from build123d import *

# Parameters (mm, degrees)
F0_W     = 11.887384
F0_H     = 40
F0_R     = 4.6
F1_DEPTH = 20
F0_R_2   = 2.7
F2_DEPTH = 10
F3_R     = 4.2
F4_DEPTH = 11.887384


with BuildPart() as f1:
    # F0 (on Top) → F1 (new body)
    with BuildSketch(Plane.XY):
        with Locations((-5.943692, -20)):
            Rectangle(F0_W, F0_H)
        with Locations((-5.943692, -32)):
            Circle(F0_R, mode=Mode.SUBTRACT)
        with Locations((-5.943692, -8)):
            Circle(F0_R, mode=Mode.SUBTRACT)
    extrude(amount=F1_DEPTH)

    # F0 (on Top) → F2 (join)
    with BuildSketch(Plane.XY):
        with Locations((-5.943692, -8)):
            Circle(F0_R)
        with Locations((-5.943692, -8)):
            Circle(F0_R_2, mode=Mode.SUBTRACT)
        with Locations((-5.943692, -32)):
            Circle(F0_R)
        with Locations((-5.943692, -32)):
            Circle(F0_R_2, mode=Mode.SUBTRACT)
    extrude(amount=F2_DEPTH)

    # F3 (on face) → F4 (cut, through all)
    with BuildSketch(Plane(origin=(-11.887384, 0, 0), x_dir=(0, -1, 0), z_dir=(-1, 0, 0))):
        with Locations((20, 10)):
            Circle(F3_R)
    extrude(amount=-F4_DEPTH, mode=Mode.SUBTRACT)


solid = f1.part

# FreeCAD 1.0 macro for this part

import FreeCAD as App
import Part
import Sketcher
from FreeCAD import Vector
Q = App.Units.Quantity

doc = App.newDocument("Part")
body = doc.addObject("PartDesign::Body", "Body")

# Sketch on XY plane
sketch1 = body.newObject("Sketcher::SketchObject", "Sketch")
sketch1.AttachmentSupport = (doc.getObject("XY_Plane"), [""])
sketch1.MapMode = "FlatFace"
sketch1.addGeometry(Part.LineSegment(Vector(-11.9, 0, 0), Vector(-11.9, -40, 0)), False)
sketch1.addGeometry(Part.LineSegment(Vector(-11.9, -40, 0), Vector(0, -40, 0)), False)
sketch1.addGeometry(Part.LineSegment(Vector(0, -40, 0), Vector(0, 0, 0)), False)
sketch1.addGeometry(Part.LineSegment(Vector(0, 0, 0), Vector(-11.9, 0, 0)), False)
sketch1.addGeometry(Part.Circle(Vector(-5.9, -32, 0), Vector(0, 0, 1), 4.6), False)
sketch1.addGeometry(Part.Circle(Vector(-5.9, -8, 0), Vector(0, 0, 1), 4.6), False)
sketch1.addConstraint(Sketcher.Constraint("Coincident", 0, 2, 1, 1))
sketch1.addConstraint(Sketcher.Constraint("Coincident", 1, 2, 2, 1))
sketch1.addConstraint(Sketcher.Constraint("Coincident", 2, 2, 3, 1))
sketch1.addConstraint(Sketcher.Constraint("Coincident", 3, 2, 0, 1))
sketch1.addConstraint(Sketcher.Constraint("Vertical", 0))
sketch1.addConstraint(Sketcher.Constraint("Horizontal", 1))
sketch1.addConstraint(Sketcher.Constraint("Vertical", 2))
sketch1.addConstraint(Sketcher.Constraint("Horizontal", 3))
sketch1.addConstraint(Sketcher.Constraint("Coincident", 2, 2, -1, 1))
sketch1.addConstraint(Sketcher.Constraint("Equal", 4, 5))
sketch1.addConstraint(Sketcher.Constraint("Vertical", 4, 3, 5, 3))
sketch1.addConstraint(Sketcher.Constraint("Diameter", 4, Q("9.2 mm")))
sketch1.addConstraint(Sketcher.Constraint("DistanceY", 0, 2, 0, 1, Q("40 mm")))
sketch1.addConstraint(Sketcher.Constraint("DistanceY", 4, 3, -1, 1, Q("32 mm")))
sketch1.addConstraint(Sketcher.Constraint("DistanceY", 5, 3, -1, 1, Q("8 mm")))
sketch1.addConstraint(Sketcher.Constraint("DistanceX", 1, 1, 1, 2, Q("11.887384 mm")))
sketch1.addConstraint(Sketcher.Constraint("DistanceX", 4, 3, -1, 1, Q("5.943692 mm")))
pad1 = body.newObject("PartDesign::Pad", "Pad")
pad1.Profile = sketch1
pad1.Length = 20

# Sketch on XY plane
sketch2 = body.newObject("Sketcher::SketchObject", "Sketch001")
sketch2.AttachmentSupport = (doc.getObject("XY_Plane"), [""])
sketch2.MapMode = "FlatFace"
sketch2.addGeometry(Part.Circle(Vector(-5.9, -8, 0), Vector(0, 0, 1), 4.6), False)
sketch2.addGeometry(Part.Circle(Vector(-5.9, -8, 0), Vector(0, 0, 1), 2.7), False)
sketch2.addGeometry(Part.Circle(Vector(-5.9, -32, 0), Vector(0, 0, 1), 4.6), False)
sketch2.addGeometry(Part.Circle(Vector(-5.9, -32, 0), Vector(0, 0, 1), 2.7), False)
sketch2.addConstraint(Sketcher.Constraint("Coincident", 1, 3, 0, 3))
sketch2.addConstraint(Sketcher.Constraint("Coincident", 3, 3, 2, 3))
sketch2.addConstraint(Sketcher.Constraint("Equal", 0, 2))
sketch2.addConstraint(Sketcher.Constraint("Equal", 1, 3))
sketch2.addConstraint(Sketcher.Constraint("Vertical", 1, 3, 2, 3))
sketch2.addConstraint(Sketcher.Constraint("Diameter", 0, Q("9.2 mm")))
sketch2.addConstraint(Sketcher.Constraint("Diameter", 1, Q("5.4 mm")))
sketch2.addConstraint(Sketcher.Constraint("DistanceY", 0, 3, -1, 1, Q("8 mm")))
sketch2.addConstraint(Sketcher.Constraint("DistanceY", 2, 3, -1, 1, Q("32 mm")))
sketch2.addConstraint(Sketcher.Constraint("DistanceX", 0, 3, -1, 1, Q("5.943692 mm")))
pad2 = body.newObject("PartDesign::Pad", "Pad001")
pad2.Profile = sketch2
pad2.Length = 10

# Sketch on YZ plane
sketch3 = body.newObject("Sketcher::SketchObject", "Sketch002")
sketch3.AttachmentSupport = (doc.getObject("YZ_Plane"), [""])
sketch3.MapMode = "FlatFace"
sketch3.AttachmentOffset = App.Placement(Vector(0, 0, -11.887384), App.Rotation())
sketch3.addGeometry(Part.Circle(Vector(-20, 10, 0), Vector(0, 0, 1), 4.2), False)
sketch3.addConstraint(Sketcher.Constraint("Diameter", 0, Q("8.4 mm")))
sketch3.addConstraint(Sketcher.Constraint("DistanceX", 0, 3, -1, 1, Q("20 mm")))
sketch3.addConstraint(Sketcher.Constraint("DistanceY", -1, 1, 0, 3, Q("10 mm")))
pocket1 = body.newObject("PartDesign::Pocket", "Pocket")
pocket1.Profile = sketch3
pocket1.Type = "ThroughAll"
pocket1.Reversed = True

doc.recompute()
